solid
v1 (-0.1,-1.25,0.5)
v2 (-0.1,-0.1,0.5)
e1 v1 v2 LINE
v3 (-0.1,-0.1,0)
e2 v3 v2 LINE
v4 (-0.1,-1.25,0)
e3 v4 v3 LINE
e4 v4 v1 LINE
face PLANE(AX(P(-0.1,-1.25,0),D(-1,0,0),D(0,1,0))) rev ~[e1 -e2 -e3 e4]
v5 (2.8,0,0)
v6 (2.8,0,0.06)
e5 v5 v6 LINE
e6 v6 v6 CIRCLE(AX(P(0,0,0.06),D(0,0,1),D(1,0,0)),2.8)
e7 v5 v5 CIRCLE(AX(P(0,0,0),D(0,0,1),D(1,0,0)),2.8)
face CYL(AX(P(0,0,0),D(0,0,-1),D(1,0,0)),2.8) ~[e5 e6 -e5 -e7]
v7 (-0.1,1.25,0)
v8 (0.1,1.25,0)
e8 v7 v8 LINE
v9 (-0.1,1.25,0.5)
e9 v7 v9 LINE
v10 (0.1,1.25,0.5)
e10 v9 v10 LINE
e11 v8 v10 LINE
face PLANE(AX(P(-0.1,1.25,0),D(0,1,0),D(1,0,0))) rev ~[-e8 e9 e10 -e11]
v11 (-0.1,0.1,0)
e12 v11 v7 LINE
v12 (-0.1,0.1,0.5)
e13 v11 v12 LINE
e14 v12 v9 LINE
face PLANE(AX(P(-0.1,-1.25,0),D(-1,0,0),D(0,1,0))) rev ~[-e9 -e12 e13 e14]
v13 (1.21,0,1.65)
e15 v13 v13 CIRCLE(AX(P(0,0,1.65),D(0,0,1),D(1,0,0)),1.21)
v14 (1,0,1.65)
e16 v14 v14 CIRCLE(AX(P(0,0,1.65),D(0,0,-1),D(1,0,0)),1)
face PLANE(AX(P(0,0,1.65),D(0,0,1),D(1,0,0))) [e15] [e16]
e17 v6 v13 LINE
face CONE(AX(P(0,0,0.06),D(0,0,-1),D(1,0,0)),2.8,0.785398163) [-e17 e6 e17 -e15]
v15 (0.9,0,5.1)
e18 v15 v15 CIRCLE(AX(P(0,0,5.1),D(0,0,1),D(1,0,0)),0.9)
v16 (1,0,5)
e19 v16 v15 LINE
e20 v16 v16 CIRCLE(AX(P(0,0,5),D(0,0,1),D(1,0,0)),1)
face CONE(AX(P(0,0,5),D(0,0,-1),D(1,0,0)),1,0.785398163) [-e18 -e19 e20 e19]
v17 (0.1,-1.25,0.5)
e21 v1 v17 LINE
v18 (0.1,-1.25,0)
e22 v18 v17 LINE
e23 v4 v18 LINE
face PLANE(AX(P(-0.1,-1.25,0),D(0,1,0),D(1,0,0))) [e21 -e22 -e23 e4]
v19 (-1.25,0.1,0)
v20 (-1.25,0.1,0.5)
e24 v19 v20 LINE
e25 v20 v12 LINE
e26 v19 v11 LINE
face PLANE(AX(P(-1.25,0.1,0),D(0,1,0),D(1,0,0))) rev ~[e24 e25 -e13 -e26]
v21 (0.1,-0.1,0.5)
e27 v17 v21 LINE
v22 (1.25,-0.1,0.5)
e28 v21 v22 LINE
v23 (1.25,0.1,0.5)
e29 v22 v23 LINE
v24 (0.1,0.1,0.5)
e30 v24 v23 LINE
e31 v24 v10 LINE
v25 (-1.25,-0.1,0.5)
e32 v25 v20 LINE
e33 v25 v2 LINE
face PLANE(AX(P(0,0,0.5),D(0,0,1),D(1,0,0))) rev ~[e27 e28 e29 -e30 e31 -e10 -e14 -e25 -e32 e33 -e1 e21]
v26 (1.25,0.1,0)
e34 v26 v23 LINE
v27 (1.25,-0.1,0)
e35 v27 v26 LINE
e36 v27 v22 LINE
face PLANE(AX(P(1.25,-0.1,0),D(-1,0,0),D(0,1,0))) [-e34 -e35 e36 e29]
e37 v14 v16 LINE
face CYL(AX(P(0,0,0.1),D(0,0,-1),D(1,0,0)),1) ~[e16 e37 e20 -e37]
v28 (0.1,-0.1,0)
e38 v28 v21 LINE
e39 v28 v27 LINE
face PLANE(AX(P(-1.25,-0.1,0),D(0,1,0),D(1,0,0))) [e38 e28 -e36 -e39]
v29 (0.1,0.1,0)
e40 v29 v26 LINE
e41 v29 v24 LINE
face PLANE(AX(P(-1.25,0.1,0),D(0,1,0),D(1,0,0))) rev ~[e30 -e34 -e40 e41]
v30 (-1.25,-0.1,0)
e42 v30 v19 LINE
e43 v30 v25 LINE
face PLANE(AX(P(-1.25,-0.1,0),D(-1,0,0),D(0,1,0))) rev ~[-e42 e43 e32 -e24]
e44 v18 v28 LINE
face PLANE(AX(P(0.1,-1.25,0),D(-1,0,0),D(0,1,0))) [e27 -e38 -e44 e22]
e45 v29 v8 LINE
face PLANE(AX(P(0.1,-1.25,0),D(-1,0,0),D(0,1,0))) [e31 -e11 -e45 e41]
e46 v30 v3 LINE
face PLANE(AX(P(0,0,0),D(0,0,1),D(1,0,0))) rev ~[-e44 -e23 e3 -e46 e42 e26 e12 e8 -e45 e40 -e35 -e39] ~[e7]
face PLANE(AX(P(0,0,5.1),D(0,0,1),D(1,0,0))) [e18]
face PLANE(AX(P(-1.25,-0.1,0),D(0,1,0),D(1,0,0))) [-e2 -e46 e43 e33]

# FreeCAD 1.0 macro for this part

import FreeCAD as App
import Part
import Sketcher
Q = App.Units.Quantity


def edges_at(feature, points):
    """Names of the edges that pass closest to the given points."""
    edges = feature.Shape.Edges
    near = lambda p: min(range(len(edges)), key=lambda i: edges[i].distToShape(Part.Vertex(*p))[0])
    return sorted({f"Edge{near(p) + 1}" for p in points})


def add_polygon(sketch, points):
    """Adds a closed chain of lines whose ends are joined by coincident constraints."""
    first, n = sketch.GeometryCount, len(points)
    for a, b in zip(points, points[1:] + points[:1]):
        sketch.addGeometry(Part.LineSegment(App.Vector(*a, 0), App.Vector(*b, 0)), False)
    for i in range(n):
        sketch.addConstraint(Sketcher.Constraint("Coincident", first + i, 2, first + (i + 1) % n, 1))

doc = App.newDocument("Part")
params = doc.addObject("Spreadsheet::Sheet", "Params")
for row, (alias, value) in enumerate([
    ("sketch1_width", "0.2 mm"),
    ("sketch1_height", "2.5 mm"),
    ("pad1_length", "0.5 mm"),
    ("sketch2_width", "2.5 mm"),
    ("sketch2_height", "0.2 mm"),
    ("pad2_length", "0.5 mm"),
    ("sketch3_diameter", "5.6 mm"),
    ("pad3_length", "1.65 mm"),
    ("sketch4_diameter", "2 mm"),
    ("pad4_length", "5 mm"),
    ("chamfer_size", "1.59 mm"),
    ("chamfer2_size", "0.1 mm"),
], start=1):
    params.set(f"A{row}", alias)
    params.set(f"B{row}", "=" + value)
    params.setAlias(f"B{row}", alias)

body = doc.addObject("PartDesign::Body", "Body")

# Sketch on XY plane
sketch1 = body.newObject("Sketcher::SketchObject", "Sketch")
sketch1.AttachmentSupport = (doc.getObject("XY_Plane"), [""])
sketch1.MapMode = "FlatFace"
add_polygon(sketch1, [(-0.1, 1.25), (-0.1, -1.25), (0.1, -1.25), (0.1, 1.25)])  # lines 0-3
sketch1.addConstraint(Sketcher.Constraint("Vertical", 0))
sketch1.addConstraint(Sketcher.Constraint("Horizontal", 1))
sketch1.addConstraint(Sketcher.Constraint("Vertical", 2))
sketch1.addConstraint(Sketcher.Constraint("Horizontal", 3))
sketch1.addConstraint(Sketcher.Constraint("Symmetric", 0, 2, 2, 2, -1, 1))
sketch1.addConstraint(Sketcher.Constraint("DistanceX", 1, 1, 1, 2, Q("0.2 mm")))
sketch1.addConstraint(Sketcher.Constraint("DistanceY", 0, 2, 0, 1, Q("2.5 mm")))
sketch1.setExpression("Constraints[9]", "Params.sketch1_width")
sketch1.setExpression("Constraints[10]", "Params.sketch1_height")
pad1 = body.newObject("PartDesign::Pad", "Pad")
pad1.Profile = sketch1
pad1.setExpression("Length", "Params.pad1_length")
body2 = doc.addObject("PartDesign::Body", "Body001")

# Sketch on XY plane
sketch2 = body2.newObject("Sketcher::SketchObject", "Sketch001")
sketch2.AttachmentSupport = (doc.getObject("XY_Plane001"), [""])
sketch2.MapMode = "FlatFace"
add_polygon(sketch2, [(-1.25, 0.1), (-1.25, -0.1), (1.25, -0.1), (1.25, 0.1)])  # lines 0-3
sketch2.addConstraint(Sketcher.Constraint("Vertical", 0))
sketch2.addConstraint(Sketcher.Constraint("Horizontal", 1))
sketch2.addConstraint(Sketcher.Constraint("Vertical", 2))
sketch2.addConstraint(Sketcher.Constraint("Horizontal", 3))
sketch2.addConstraint(Sketcher.Constraint("Symmetric", 0, 2, 2, 2, -1, 1))
sketch2.addConstraint(Sketcher.Constraint("DistanceX", 1, 1, 1, 2, Q("2.5 mm")))
sketch2.addConstraint(Sketcher.Constraint("DistanceY", 0, 2, 0, 1, Q("0.2 mm")))
sketch2.setExpression("Constraints[9]", "Params.sketch2_width")
sketch2.setExpression("Constraints[10]", "Params.sketch2_height")
pad2 = body2.newObject("PartDesign::Pad", "Pad001")
pad2.Profile = sketch2
pad2.setExpression("Length", "Params.pad2_length")
doc.recompute()

boolean = body2.newObject("PartDesign::Boolean", "Boolean")
boolean.Type = "Fuse"
boolean.addObjects([body])
body3 = doc.addObject("PartDesign::Body", "Body002")

# Sketch on XY plane
sketch3 = body3.newObject("Sketcher::SketchObject", "Sketch002")
sketch3.AttachmentSupport = (doc.getObject("XY_Plane002"), [""])
sketch3.MapMode = "FlatFace"
sketch3.addGeometry(Part.Circle(App.Vector(0, 0, 0), App.Vector(0, 0, 1), 2.8), False)
sketch3.addConstraint(Sketcher.Constraint("Coincident", 0, 3, -1, 1))
sketch3.addConstraint(Sketcher.Constraint("Diameter", 0, Q("5.6 mm")))
sketch3.setExpression("Constraints[1]", "Params.sketch3_diameter")
pad3 = body3.newObject("PartDesign::Pad", "Pad002")
pad3.Profile = sketch3
pad3.setExpression("Length", "Params.pad3_length")
body4 = doc.addObject("PartDesign::Body", "Body003")

# Sketch on XY plane
sketch4 = body4.newObject("Sketcher::SketchObject", "Sketch003")
sketch4.AttachmentSupport = (doc.getObject("XY_Plane003"), [""])
sketch4.MapMode = "FlatFace"
sketch4.AttachmentOffset = App.Placement(App.Vector(0, 0, 0.1), App.Rotation())
sketch4.addGeometry(Part.Circle(App.Vector(0, 0, 0), App.Vector(0, 0, 1), 1), False)
sketch4.addConstraint(Sketcher.Constraint("Coincident", 0, 3, -1, 1))
sketch4.addConstraint(Sketcher.Constraint("Diameter", 0, Q("2 mm")))
sketch4.setExpression("Constraints[1]", "Params.sketch4_diameter")
pad4 = body4.newObject("PartDesign::Pad", "Pad003")
pad4.Profile = sketch4
pad4.setExpression("Length", "Params.pad4_length")
doc.recompute()

boolean2 = body4.newObject("PartDesign::Boolean", "Boolean001")
boolean2.Type = "Fuse"
boolean2.addObjects([body3])
doc.recompute()

boolean3 = body4.newObject("PartDesign::Boolean", "Boolean002")
boolean3.Type = "Cut"
boolean3.addObjects([body2])
doc.recompute()

chamfer = body4.newObject("PartDesign::Chamfer", "Chamfer")
chamfer.Base = (boolean3, edges_at(boolean3, [(-2.8, 0, 1.65)]))
chamfer.setExpression("Size", "Params.chamfer_size")
doc.recompute()

chamfer2 = body4.newObject("PartDesign::Chamfer", "Chamfer001")
chamfer2.Base = (chamfer, edges_at(chamfer, [(-1, 0, 5.1)]))
chamfer2.setExpression("Size", "Params.chamfer2_size")

doc.recompute()
